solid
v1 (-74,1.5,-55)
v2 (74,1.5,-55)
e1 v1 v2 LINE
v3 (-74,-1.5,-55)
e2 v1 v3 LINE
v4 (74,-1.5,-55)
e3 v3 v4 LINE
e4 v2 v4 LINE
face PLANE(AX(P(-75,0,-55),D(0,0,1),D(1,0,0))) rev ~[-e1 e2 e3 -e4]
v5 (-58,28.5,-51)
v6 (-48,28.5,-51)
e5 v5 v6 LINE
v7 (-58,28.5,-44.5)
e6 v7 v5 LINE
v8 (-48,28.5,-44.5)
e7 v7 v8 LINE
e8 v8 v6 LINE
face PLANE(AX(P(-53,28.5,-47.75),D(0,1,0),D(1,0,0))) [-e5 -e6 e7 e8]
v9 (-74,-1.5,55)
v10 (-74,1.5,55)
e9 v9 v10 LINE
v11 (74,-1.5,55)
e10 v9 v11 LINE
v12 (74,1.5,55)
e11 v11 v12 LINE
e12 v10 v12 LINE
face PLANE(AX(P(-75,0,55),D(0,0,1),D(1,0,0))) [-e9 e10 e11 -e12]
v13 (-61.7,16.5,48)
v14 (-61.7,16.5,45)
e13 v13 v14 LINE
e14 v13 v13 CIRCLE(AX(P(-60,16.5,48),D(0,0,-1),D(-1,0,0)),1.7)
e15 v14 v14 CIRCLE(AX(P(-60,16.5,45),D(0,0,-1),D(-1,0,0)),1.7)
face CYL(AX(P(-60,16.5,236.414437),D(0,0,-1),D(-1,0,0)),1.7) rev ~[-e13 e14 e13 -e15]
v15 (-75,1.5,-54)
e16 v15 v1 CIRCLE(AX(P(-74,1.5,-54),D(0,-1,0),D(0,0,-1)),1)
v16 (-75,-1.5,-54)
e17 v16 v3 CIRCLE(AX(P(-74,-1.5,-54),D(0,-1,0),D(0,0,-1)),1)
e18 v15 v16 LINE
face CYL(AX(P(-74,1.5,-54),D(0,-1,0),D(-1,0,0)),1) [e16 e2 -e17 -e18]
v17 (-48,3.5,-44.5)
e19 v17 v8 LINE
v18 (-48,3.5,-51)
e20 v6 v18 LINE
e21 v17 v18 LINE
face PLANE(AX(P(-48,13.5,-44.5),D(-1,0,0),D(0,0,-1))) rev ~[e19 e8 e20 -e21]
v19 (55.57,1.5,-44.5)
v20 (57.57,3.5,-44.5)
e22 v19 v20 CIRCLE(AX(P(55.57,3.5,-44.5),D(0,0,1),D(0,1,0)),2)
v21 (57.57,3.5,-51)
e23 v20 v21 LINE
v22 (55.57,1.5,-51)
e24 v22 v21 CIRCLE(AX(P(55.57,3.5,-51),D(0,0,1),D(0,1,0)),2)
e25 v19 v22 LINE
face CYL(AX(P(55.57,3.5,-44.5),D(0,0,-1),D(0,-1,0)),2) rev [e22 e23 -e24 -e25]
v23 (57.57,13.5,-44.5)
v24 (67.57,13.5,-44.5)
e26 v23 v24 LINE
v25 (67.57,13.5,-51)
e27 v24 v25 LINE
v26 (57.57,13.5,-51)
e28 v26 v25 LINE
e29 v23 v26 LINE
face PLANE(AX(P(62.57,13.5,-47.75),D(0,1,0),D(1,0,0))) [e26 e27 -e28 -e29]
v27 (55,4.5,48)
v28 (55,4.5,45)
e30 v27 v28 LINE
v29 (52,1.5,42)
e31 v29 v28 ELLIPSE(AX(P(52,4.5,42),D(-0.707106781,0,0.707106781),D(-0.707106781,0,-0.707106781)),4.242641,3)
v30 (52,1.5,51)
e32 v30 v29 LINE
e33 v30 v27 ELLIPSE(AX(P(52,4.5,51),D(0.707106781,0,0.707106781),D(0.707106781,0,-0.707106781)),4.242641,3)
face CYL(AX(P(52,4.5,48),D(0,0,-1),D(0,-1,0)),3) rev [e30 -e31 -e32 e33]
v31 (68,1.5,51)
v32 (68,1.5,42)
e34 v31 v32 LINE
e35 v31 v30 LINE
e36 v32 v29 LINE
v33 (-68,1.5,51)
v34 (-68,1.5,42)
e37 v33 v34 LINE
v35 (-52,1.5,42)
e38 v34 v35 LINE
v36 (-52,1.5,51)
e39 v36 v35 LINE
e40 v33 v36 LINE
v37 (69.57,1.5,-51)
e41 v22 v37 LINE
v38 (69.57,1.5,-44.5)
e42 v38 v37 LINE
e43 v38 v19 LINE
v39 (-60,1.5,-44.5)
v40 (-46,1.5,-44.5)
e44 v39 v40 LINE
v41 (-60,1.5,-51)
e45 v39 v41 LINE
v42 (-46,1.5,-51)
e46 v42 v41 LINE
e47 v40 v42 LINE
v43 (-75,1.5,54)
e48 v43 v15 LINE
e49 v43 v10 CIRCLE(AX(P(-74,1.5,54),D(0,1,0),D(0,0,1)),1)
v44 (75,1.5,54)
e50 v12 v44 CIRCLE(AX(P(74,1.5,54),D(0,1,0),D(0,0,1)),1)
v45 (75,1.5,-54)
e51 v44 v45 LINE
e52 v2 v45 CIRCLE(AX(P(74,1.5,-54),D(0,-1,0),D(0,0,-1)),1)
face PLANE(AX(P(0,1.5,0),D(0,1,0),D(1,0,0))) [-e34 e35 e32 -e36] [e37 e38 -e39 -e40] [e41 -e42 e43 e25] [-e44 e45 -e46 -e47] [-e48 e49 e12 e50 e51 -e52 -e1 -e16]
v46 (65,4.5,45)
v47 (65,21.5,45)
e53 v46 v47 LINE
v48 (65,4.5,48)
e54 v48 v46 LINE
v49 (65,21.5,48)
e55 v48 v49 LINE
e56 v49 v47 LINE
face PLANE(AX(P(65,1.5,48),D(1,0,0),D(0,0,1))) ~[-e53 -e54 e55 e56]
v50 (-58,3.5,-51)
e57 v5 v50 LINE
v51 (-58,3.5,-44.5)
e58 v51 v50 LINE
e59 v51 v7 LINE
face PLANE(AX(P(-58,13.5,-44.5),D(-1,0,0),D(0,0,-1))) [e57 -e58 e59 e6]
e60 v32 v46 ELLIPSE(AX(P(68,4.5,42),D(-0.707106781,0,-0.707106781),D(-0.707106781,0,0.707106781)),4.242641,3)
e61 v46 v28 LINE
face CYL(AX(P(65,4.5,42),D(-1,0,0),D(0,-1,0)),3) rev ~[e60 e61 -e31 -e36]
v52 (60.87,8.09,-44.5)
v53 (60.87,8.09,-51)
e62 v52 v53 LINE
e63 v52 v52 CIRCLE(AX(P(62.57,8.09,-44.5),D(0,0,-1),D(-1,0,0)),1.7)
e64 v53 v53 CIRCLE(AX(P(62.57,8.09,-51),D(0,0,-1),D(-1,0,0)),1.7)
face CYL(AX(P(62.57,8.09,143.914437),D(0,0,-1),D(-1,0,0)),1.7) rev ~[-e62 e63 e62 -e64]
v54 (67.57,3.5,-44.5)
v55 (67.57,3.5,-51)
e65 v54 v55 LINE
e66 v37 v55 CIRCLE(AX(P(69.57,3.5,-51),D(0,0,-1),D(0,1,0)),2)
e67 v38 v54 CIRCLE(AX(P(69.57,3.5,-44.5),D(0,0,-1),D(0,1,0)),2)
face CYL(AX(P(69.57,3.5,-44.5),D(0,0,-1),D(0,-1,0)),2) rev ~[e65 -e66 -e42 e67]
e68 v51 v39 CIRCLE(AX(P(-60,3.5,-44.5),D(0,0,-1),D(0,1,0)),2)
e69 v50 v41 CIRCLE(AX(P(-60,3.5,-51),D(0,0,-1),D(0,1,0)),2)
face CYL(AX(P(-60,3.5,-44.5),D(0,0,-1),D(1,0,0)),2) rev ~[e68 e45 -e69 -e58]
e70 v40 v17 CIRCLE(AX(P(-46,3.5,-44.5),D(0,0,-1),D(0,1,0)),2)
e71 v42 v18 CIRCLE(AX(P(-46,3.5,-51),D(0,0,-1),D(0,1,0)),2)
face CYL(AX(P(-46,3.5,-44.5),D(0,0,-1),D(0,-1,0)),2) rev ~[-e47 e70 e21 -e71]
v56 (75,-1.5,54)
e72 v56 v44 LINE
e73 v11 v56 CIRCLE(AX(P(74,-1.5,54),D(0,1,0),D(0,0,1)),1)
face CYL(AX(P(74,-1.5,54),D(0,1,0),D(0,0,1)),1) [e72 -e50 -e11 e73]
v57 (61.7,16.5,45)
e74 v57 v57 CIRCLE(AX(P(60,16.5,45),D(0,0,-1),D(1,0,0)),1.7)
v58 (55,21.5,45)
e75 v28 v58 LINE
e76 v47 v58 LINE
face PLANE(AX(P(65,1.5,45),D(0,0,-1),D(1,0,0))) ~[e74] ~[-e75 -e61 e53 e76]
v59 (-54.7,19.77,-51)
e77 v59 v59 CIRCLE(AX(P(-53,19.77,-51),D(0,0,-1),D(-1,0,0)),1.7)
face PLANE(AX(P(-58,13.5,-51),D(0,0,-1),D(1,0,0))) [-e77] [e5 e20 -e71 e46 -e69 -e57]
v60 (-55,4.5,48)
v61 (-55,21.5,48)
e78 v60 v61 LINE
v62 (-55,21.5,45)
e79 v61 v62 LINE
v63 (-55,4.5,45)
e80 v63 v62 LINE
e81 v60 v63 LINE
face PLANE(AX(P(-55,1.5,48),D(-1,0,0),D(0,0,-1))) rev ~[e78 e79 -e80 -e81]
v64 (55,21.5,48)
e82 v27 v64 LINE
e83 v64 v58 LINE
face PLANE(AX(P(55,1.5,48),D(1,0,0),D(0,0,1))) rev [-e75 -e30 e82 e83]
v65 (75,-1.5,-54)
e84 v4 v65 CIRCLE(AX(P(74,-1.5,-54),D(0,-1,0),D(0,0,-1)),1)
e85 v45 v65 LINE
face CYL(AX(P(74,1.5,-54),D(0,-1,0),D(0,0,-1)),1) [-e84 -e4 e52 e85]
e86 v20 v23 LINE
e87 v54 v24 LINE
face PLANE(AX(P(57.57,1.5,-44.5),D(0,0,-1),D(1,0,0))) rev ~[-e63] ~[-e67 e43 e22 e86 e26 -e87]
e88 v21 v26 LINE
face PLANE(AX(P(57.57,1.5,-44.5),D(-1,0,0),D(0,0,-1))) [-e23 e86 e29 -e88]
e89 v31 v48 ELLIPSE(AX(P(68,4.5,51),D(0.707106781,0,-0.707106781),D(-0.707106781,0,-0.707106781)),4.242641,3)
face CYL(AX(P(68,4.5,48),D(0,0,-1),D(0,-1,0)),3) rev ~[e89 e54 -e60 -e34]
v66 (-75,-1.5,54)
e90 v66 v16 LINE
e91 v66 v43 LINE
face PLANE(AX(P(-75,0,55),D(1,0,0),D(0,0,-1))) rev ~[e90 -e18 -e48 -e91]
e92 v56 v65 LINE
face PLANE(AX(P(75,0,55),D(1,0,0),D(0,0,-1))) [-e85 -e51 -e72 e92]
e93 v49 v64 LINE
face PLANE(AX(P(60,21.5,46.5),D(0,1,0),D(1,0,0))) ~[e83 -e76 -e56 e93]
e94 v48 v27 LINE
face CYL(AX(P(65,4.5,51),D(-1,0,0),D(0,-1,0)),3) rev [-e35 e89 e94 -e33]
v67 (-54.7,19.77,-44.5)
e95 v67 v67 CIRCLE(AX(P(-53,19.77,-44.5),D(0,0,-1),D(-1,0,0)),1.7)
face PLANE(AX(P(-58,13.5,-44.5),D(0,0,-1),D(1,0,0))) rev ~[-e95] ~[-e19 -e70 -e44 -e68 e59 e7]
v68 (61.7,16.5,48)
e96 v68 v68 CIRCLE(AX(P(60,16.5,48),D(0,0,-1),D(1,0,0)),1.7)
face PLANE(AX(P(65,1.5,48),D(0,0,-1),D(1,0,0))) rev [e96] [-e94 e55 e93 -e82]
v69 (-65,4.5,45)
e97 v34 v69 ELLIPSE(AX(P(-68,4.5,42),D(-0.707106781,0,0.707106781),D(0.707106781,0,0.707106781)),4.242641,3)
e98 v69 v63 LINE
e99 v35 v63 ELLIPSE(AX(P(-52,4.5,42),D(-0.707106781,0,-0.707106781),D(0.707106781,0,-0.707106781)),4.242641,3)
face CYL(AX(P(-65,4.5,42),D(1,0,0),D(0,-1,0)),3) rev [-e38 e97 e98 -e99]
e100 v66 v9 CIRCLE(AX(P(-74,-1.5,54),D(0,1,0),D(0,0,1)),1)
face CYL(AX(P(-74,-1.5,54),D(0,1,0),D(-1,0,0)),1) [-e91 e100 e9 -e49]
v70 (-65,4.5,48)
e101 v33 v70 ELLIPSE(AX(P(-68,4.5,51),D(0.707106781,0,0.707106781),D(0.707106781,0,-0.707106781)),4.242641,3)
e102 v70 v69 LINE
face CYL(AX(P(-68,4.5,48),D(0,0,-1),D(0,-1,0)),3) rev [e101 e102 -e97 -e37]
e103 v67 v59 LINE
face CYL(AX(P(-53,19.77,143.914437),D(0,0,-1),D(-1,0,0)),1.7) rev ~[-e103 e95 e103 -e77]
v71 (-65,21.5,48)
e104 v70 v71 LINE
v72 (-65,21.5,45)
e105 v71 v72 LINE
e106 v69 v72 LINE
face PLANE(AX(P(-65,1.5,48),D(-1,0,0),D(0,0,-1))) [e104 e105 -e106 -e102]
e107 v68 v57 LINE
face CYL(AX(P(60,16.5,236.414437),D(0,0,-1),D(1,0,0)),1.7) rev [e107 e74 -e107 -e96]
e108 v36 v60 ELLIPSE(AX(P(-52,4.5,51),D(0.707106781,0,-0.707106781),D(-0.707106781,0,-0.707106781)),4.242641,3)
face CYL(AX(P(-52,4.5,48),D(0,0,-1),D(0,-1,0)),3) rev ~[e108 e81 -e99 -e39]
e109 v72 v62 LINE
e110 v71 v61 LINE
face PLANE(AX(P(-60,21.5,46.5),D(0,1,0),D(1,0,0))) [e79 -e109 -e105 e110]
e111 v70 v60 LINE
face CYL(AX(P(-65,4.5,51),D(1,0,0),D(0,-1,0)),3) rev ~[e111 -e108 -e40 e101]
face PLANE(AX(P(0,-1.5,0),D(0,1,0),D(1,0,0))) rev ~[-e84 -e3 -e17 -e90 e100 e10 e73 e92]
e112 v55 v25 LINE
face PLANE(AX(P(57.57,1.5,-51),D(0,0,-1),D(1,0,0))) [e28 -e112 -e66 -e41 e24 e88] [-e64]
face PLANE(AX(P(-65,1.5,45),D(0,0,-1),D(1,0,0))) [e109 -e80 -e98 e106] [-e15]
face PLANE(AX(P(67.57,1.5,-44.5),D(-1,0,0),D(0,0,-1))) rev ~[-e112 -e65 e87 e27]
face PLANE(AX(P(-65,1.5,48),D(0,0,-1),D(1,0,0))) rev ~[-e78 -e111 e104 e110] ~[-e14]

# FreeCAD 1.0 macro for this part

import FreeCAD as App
import Part
import Sketcher


def edges_at(feature, points):
    """Names of the edges that pass closest to the given points."""
    edges = feature.Shape.Edges
    near = lambda p: min(range(len(edges)), key=lambda i: edges[i].distToShape(Part.Vertex(*p))[0])
    return sorted({f"Edge{near(p) + 1}" for p in points})


def add_polygon(sketch, points):
    """Adds a closed chain of lines whose ends are joined by coincident constraints."""
    first, n = sketch.GeometryCount, len(points)
    for a, b in zip(points, points[1:] + points[:1]):
        sketch.addGeometry(Part.LineSegment(App.Vector(*a, 0), App.Vector(*b, 0)), False)
    for i in range(n):
        sketch.addConstraint(Sketcher.Constraint("Coincident", first + i, 2, first + (i + 1) % n, 1))

doc = App.newDocument("Part")
body = doc.addObject("PartDesign::Body", "Body")

# Sketch on XZ plane
sketch1 = body.newObject("Sketcher::SketchObject", "Sketch")
sketch1.AttachmentSupport = (doc.getObject("XZ_Plane"), [""])
sketch1.MapMode = "FlatFace"
add_polygon(sketch1, [(-75, -55), (-75, 55), (75, 55), (75, -55)])  # lines 0-3
sketch1.addConstraint([
    Sketcher.Constraint("Vertical", 0),
    Sketcher.Constraint("Horizontal", 1),
    Sketcher.Constraint("Vertical", 2),
    Sketcher.Constraint("Horizontal", 3),
    Sketcher.Constraint("Symmetric", 0, 2, 2, 2, -1, 1),
    Sketcher.Constraint("DistanceX", 1, 1, 1, 2, 150.0),
    Sketcher.Constraint("DistanceY", 0, 1, 0, 2, 110.0),
])
pad1 = body.newObject("PartDesign::Pad", "Pad")
pad1.Profile = sketch1
pad1.Length = 3
pad1.Midplane = True

# Sketch on XZ plane
sketch2 = body.newObject("Sketcher::SketchObject", "Sketch001")
sketch2.AttachmentSupport = (doc.getObject("XZ_Plane"), [""])
sketch2.MapMode = "FlatFace"
sketch2.AttachmentOffset = App.Placement(App.Vector(0, 0, -1.5), App.Rotation())
add_polygon(sketch2, [(58, -51), (58, -44), (68, -44), (68, -51)])  # lines 0-3
add_polygon(sketch2, [(-58, -51), (-58, -44), (-48, -44), (-48, -51)])  # lines 4-7
sketch2.addConstraint([
    Sketcher.Constraint("Vertical", 0),
    Sketcher.Constraint("Horizontal", 1),
    Sketcher.Constraint("Vertical", 2),
    Sketcher.Constraint("Horizontal", 3),
    Sketcher.Constraint("Vertical", 4),
    Sketcher.Constraint("Horizontal", 5),
    Sketcher.Constraint("Vertical", 6),
    Sketcher.Constraint("Horizontal", 7),
    Sketcher.Constraint("Horizontal", 1, 2, 4, 2),
    Sketcher.Constraint("Horizontal", 3, 2, 6, 2),
    Sketcher.Constraint("Equal", 3, 5),
    Sketcher.Constraint("DistanceX", 1, 1, 1, 2, 10.0),
    Sketcher.Constraint("DistanceY", 0, 1, 0, 2, 6.5),
    Sketcher.Constraint("DistanceY", 2, 2, -1, 1, 51.0),
    Sketcher.Constraint("DistanceX", 4, 2, -1, 1, 58.0),
    Sketcher.Constraint("DistanceX", -1, 1, 0, 2, 57.57),
])
pad2 = body.newObject("PartDesign::Pad", "Pad001")
pad2.Profile = sketch2
pad2.Length = 12
pad2.Reversed = True

# Sketch on XZ plane
sketch3 = body.newObject("Sketcher::SketchObject", "Sketch002")
sketch3.AttachmentSupport = (doc.getObject("XZ_Plane"), [""])
sketch3.MapMode = "FlatFace"
sketch3.AttachmentOffset = App.Placement(App.Vector(0, 0, -13.5), App.Rotation())
add_polygon(sketch3, [(-58, -51), (-58, -44), (-48, -44), (-48, -51)])  # lines 0-3
sketch3.addConstraint([
    Sketcher.Constraint("Vertical", 0),
    Sketcher.Constraint("Horizontal", 1),
    Sketcher.Constraint("Vertical", 2),
    Sketcher.Constraint("Horizontal", 3),
    Sketcher.Constraint("DistanceX", 1, 1, 1, 2, 10.0),
    Sketcher.Constraint("DistanceY", 0, 1, 0, 2, 6.5),
    Sketcher.Constraint("DistanceX", 0, 2, -1, 1, 58.0),
    Sketcher.Constraint("DistanceY", 2, 2, -1, 1, 51.0),
])
pad3 = body.newObject("PartDesign::Pad", "Pad002")
pad3.Profile = sketch3
pad3.Length = 15
pad3.Reversed = True

# Sketch on XY plane
sketch4 = body.newObject("Sketcher::SketchObject", "Sketch003")
sketch4.AttachmentSupport = (doc.getObject("XY_Plane"), [""])
sketch4.MapMode = "FlatFace"
sketch4.AttachmentOffset = App.Placement(App.Vector(0, 0, -44.5), App.Rotation())
sketch4.addGeometry(Part.Circle(App.Vector(-53, 19.8, 0), App.Vector(0, 0, 1), 1.7), False)
sketch4.addConstraint([
    Sketcher.Constraint("Diameter", 0, 3.4),
    Sketcher.Constraint("DistanceX", 0, 3, -1, 1, 53.0),
    Sketcher.Constraint("DistanceY", -1, 1, 0, 3, 19.77),
])
doc.recompute()
hole = body.newObject("PartDesign::Hole", "Hole")
hole.Profile = sketch4
hole.ThreadType = "None"
hole.Diameter = 3.4
hole.DepthType = "ThroughAll"
doc.recompute()

fillet = body.newObject("PartDesign::Fillet", "Fillet")
fillet.Base = (hole, edges_at(hole, [
    (67.57, 1.5, -47.75),
    (57.57, 1.5, -47.75),
    (-48, 1.5, -47.75),
    (-58, 1.5, -47.75),
]))
fillet.Radius = 2

# Sketch on XY plane
sketch5 = body.newObject("Sketcher::SketchObject", "Sketch004")
sketch5.AttachmentSupport = (doc.getObject("XY_Plane"), [""])
sketch5.MapMode = "FlatFace"
sketch5.AttachmentOffset = App.Placement(App.Vector(0, 0, -44.5), App.Rotation())
sketch5.addGeometry(Part.Circle(App.Vector(62.6, 8.1, 0), App.Vector(0, 0, 1), 1.7), False)
sketch5.addConstraint([
    Sketcher.Constraint("Diameter", 0, 3.4),
    Sketcher.Constraint("DistanceX", -1, 1, 0, 3, 62.57),
    Sketcher.Constraint("DistanceY", -1, 1, 0, 3, 8.09),
])
doc.recompute()
hole2 = body.newObject("PartDesign::Hole", "Hole001")
hole2.Profile = sketch5
hole2.ThreadType = "None"
hole2.Diameter = 3.4
hole2.DepthType = "ThroughAll"

# Sketch on XZ plane
sketch6 = body.newObject("Sketcher::SketchObject", "Sketch005")
sketch6.AttachmentSupport = (doc.getObject("XZ_Plane"), [""])
sketch6.MapMode = "FlatFace"
sketch6.AttachmentOffset = App.Placement(App.Vector(0, 0, -1.5), App.Rotation())
add_polygon(sketch6, [(-65, 45), (-65, 48), (-55, 48), (-55, 45)])  # lines 0-3
sketch6.addConstraint([
    Sketcher.Constraint("Vertical", 0),
    Sketcher.Constraint("Horizontal", 1),
    Sketcher.Constraint("Vertical", 2),
    Sketcher.Constraint("Horizontal", 3),
    Sketcher.Constraint("DistanceX", 1, 1, 1, 2, 10.0),
    Sketcher.Constraint("DistanceY", 0, 1, 0, 2, 3.0),
    Sketcher.Constraint("DistanceX", 0, 2, -1, 1, 65.0),
    Sketcher.Constraint("DistanceY", -1, 1, 0, 2, 48.0),
])
pad4 = body.newObject("PartDesign::Pad", "Pad003")
pad4.Profile = sketch6
pad4.Length = 20
pad4.Reversed = True
doc.recompute()

fillet2 = body.newObject("PartDesign::Fillet", "Fillet001")
fillet2.Base = (pad4, edges_at(pad4, [
    (-55, 1.5, 46.5),
    (-60, 1.5, 45),
    (-65, 1.5, 46.5),
    (-60, 1.5, 48),
]))
fillet2.Radius = 3

# Sketch on XY plane
sketch7 = body.newObject("Sketcher::SketchObject", "Sketch006")
sketch7.AttachmentSupport = (doc.getObject("XY_Plane"), [""])
sketch7.MapMode = "FlatFace"
sketch7.AttachmentOffset = App.Placement(App.Vector(0, 0, 48), App.Rotation())
sketch7.addGeometry(Part.Circle(App.Vector(-60, 16.5, 0), App.Vector(0, 0, 1), 1.7), False)
sketch7.addConstraint([
    Sketcher.Constraint("Diameter", 0, 3.4),
    Sketcher.Constraint("DistanceX", 0, 3, -1, 1, 60.0),
    Sketcher.Constraint("DistanceY", -1, 1, 0, 3, 16.5),
])
doc.recompute()
hole3 = body.newObject("PartDesign::Hole", "Hole002")
hole3.Profile = sketch7
hole3.ThreadType = "None"
hole3.Diameter = 3.4
hole3.DepthType = "ThroughAll"
doc.recompute()

mirrored = body.newObject("PartDesign::Mirrored", "Mirrored")
mirrored.Originals = [pad4, hole3]
mirrored.MirrorPlane = (doc.getObject("YZ_Plane"), [""])
body.Tip = mirrored
doc.recompute()

fillet3 = body.newObject("PartDesign::Fillet", "Fillet002")
fillet3.Base = (mirrored, edges_at(mirrored, [
    (55, 1.5, 46.5),
    (60, 1.5, 45),
    (65, 1.5, 46.5),
    (60, 1.5, 48),
]))
fillet3.Radius = 3
doc.recompute()

fillet4 = body.newObject("PartDesign::Fillet", "Fillet003")
fillet4.Base = (fillet3, edges_at(fillet3, [
    (-75, 0, -55),
    (75, 0, -55),
    (75, 0, 55),
    (-75, 0, 55),
]))
fillet4.Radius = 1

doc.recompute()
